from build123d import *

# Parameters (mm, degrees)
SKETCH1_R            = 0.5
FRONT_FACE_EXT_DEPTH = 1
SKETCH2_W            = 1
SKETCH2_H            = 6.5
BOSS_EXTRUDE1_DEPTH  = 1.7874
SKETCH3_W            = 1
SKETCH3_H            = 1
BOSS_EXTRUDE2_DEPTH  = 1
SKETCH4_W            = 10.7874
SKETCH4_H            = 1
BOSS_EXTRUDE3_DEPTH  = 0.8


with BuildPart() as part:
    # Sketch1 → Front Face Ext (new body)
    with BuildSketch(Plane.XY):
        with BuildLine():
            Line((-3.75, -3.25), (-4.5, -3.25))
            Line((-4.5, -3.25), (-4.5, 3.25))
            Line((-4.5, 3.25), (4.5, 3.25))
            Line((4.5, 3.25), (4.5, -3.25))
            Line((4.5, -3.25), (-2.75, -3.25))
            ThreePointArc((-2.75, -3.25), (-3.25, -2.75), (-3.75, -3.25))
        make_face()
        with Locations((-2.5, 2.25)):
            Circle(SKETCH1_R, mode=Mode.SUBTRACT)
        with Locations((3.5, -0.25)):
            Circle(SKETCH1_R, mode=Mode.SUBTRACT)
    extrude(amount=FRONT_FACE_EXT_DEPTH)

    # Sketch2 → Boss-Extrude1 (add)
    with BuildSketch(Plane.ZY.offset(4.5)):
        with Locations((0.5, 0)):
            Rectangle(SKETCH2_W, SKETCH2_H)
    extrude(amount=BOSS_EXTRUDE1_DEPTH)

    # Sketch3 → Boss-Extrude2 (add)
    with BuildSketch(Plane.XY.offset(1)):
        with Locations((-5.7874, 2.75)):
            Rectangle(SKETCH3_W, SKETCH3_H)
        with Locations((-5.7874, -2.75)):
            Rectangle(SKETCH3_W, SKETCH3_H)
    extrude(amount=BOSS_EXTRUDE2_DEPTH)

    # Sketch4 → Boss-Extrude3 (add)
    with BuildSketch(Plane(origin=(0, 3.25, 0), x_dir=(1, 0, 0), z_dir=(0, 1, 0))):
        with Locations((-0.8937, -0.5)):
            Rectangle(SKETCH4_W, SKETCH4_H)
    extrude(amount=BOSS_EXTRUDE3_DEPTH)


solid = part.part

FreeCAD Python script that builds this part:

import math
import FreeCAD as App
import Part
import Sketcher

V = App.Vector
Q = App.Units.Quantity


def add_polygon(sketch, points):
    """Adds a closed chain of lines whose ends are joined by coincident constraints."""
    first, n = sketch.GeometryCount, len(points)
    for a, b in zip(points, points[1:] + points[:1]):
        sketch.addGeometry(Part.LineSegment(App.Vector(*a, 0), App.Vector(*b, 0)), False)
    for i in range(n):
        sketch.addConstraint(Sketcher.Constraint("Coincident", first + i, 2, first + (i + 1) % n, 1))

doc = App.newDocument("Part")
params = doc.addObject("Spreadsheet::Sheet", "Params")
for row, (alias, value) in enumerate([
    ("sketch1_diameter", "1 mm"),
    ("sketch1_width", "9 mm"),
    ("sketch1_height", "6.5 mm"),
    ("sketch1_width2", "0.75 mm"),
    ("pad1_length", "1 mm"),
    ("sketch2_height", "1 mm"),
    ("sketch2_width", "6.5 mm"),
    ("pad2_length", "1.7874 mm"),
    ("sketch3_width", "1 mm"),
    ("pad3_length", "1 mm"),
    ("sketch4_height", "1 mm"),
    ("pad4_length", "0.8 mm"),
], start=1):
    params.set(f"A{row}", alias)
    params.set(f"B{row}", "=" + value)
    params.setAlias(f"B{row}", alias)

body = doc.addObject("PartDesign::Body", "Body")

# Sketch on XY plane
sketch1 = body.newObject("Sketcher::SketchObject", "Sketch")
sketch1.AttachmentSupport = (doc.getObject("XY_Plane"), [""])
sketch1.MapMode = "FlatFace"
sketch1.addGeometry(Part.LineSegment(V(-4.5, -3.2, 0), V(-3.8, -3.2, 0)), False)
sketch1.addGeometry(Part.ArcOfCircle(Part.Circle(V(-3.2, -3.2, 0), V(0, 0, 1), 0.5), math.radians(0), math.radians(180)), False)
sketch1.addGeometry(Part.LineSegment(V(-2.8, -3.2, 0), V(4.5, -3.2, 0)), False)
sketch1.addGeometry(Part.LineSegment(V(4.5, -3.2, 0), V(4.5, 3.2, 0)), False)
sketch1.addGeometry(Part.LineSegment(V(4.5, 3.2, 0), V(-4.5, 3.2, 0)), False)
sketch1.addGeometry(Part.LineSegment(V(-4.5, 3.2, 0), V(-4.5, -3.2, 0)), False)
sketch1.addGeometry(Part.Circle(V(3.5, -0.2, 0), V(0, 0, 1), 0.5), False)
sketch1.addGeometry(Part.Circle(V(-2.5, 2.2, 0), V(0, 0, 1), 0.5), False)
sketch1.addConstraint(Sketcher.Constraint("Coincident", 0, 2, 1, 2))
sketch1.addConstraint(Sketcher.Constraint("Coincident", 1, 1, 2, 1))
sketch1.addConstraint(Sketcher.Constraint("Coincident", 2, 2, 3, 1))
sketch1.addConstraint(Sketcher.Constraint("Coincident", 3, 2, 4, 1))
sketch1.addConstraint(Sketcher.Constraint("Coincident", 4, 2, 5, 1))
sketch1.addConstraint(Sketcher.Constraint("Coincident", 5, 2, 0, 1))
sketch1.addConstraint(Sketcher.Constraint("Horizontal", 0))
sketch1.addConstraint(Sketcher.Constraint("Horizontal", 2))
sketch1.addConstraint(Sketcher.Constraint("Vertical", 3))
sketch1.addConstraint(Sketcher.Constraint("Horizontal", 4))
sketch1.addConstraint(Sketcher.Constraint("Vertical", 5))
sketch1.addConstraint(Sketcher.Constraint("Equal", 1, 6))
sketch1.addConstraint(Sketcher.Constraint("Equal", 6, 7))
sketch1.addConstraint(Sketcher.Constraint("Symmetric", 2, 2, 4, 2, -1, 1))
sketch1.addConstraint(Sketcher.Constraint("Horizontal", 1, 3, 0, 2))
sketch1.addConstraint(Sketcher.Constraint("Horizontal", 0, 2, 1, 1))
sketch1.addConstraint(Sketcher.Constraint("Diameter", 6, Q("1 mm")))
sketch1.addConstraint(Sketcher.Constraint("DistanceX", 4, 2, 4, 1, Q("9 mm")))
sketch1.addConstraint(Sketcher.Constraint("DistanceY", 3, 1, 3, 2, Q("6.5 mm")))
sketch1.addConstraint(Sketcher.Constraint("DistanceY", 1, 3, 6, 3, Q("3 mm")))
sketch1.addConstraint(Sketcher.Constraint("DistanceX", 7, 3, 6, 3, Q("6 mm")))
sketch1.addConstraint(Sketcher.Constraint("DistanceX", 6, 3, 2, 2, Q("1 mm")))
sketch1.addConstraint(Sketcher.Constraint("DistanceY", 7, 3, 3, 2, Q("1 mm")))
sketch1.addConstraint(Sketcher.Constraint("DistanceX", 0, 1, 0, 2, Q("0.75 mm")))
sketch1.setExpression("Constraints[16]", "Params.sketch1_diameter")
sketch1.setExpression("Constraints[17]", "Params.sketch1_width")
sketch1.setExpression("Constraints[18]", "Params.sketch1_height")
sketch1.setExpression("Constraints[23]", "Params.sketch1_width2")
pad1 = body.newObject("PartDesign::Pad", "Pad")
pad1.Profile = sketch1
pad1.setExpression("Length", "Params.pad1_length")

# Sketch on YZ plane
sketch2 = body.newObject("Sketcher::SketchObject", "Sketch001")
sketch2.AttachmentSupport = (doc.getObject("YZ_Plane"), [""])
sketch2.MapMode = "FlatFace"
sketch2.AttachmentOffset = App.Placement(V(0, 0, -4.5), App.Rotation())
add_polygon(sketch2, [(3.2, 0), (-3.2, 0), (-3.2, 1), (3.2, 1)])  # lines 0-3
sketch2.addConstraint(Sketcher.Constraint("Horizontal", 0))
sketch2.addConstraint(Sketcher.Constraint("Vertical", 1))
sketch2.addConstraint(Sketcher.Constraint("Horizontal", 2))
sketch2.addConstraint(Sketcher.Constraint("Vertical", 3))
sketch2.addConstraint(Sketcher.Constraint("Symmetric", 0, 2, 3, 2, -1, 1))
sketch2.addConstraint(Sketcher.Constraint("DistanceY", 1, 1, 1, 2, Q("1 mm")))
sketch2.addConstraint(Sketcher.Constraint("DistanceX", 0, 2, 0, 1, Q("6.5 mm")))
sketch2.setExpression("Constraints[9]", "Params.sketch2_height")
sketch2.setExpression("Constraints[10]", "Params.sketch2_width")
pad2 = body.newObject("PartDesign::Pad", "Pad001")
pad2.Profile = sketch2
pad2.setExpression("Length", "Params.pad2_length")
pad2.Reversed = True

# Sketch on XY plane
sketch3 = body.newObject("Sketcher::SketchObject", "Sketch002")
sketch3.AttachmentSupport = (doc.getObject("XY_Plane"), [""])
sketch3.MapMode = "FlatFace"
sketch3.AttachmentOffset = App.Placement(V(0, 0, 1), App.Rotation())
add_polygon(sketch3, [(-6.3, 3.2), (-6.3, 2.2), (-5.3, 2.2), (-5.3, 3.2)])  # lines 0-3
add_polygon(sketch3, [(-6.3, -2.2), (-6.3, -3.2), (-5.3, -3.2), (-5.3, -2.2)])  # lines 4-7
sketch3.addConstraint(Sketcher.Constraint("Vertical", 0))
sketch3.addConstraint(Sketcher.Constraint("Horizontal", 1))
sketch3.addConstraint(Sketcher.Constraint("Vertical", 2))
sketch3.addConstraint(Sketcher.Constraint("Horizontal", 3))
sketch3.addConstraint(Sketcher.Constraint("Vertical", 4))
sketch3.addConstraint(Sketcher.Constraint("Horizontal", 5))
sketch3.addConstraint(Sketcher.Constraint("Vertical", 6))
sketch3.addConstraint(Sketcher.Constraint("Horizontal", 7))
sketch3.addConstraint(Sketcher.Constraint("Symmetric", 3, 2, 4, 2, -1))
sketch3.addConstraint(Sketcher.Constraint("Symmetric", 1, 2, 6, 2, -1))
sketch3.addConstraint(Sketcher.Constraint("Equal", 7, 0))
sketch3.addConstraint(Sketcher.Constraint("DistanceX", 1, 1, 1, 2, Q("1 mm")))
sketch3.addConstraint(Sketcher.Constraint("DistanceY", 4, 2, 0, 2, Q("5.5 mm")))
sketch3.addConstraint(Sketcher.Constraint("DistanceX", 0, 2, -1, 1, Q("6.2874 mm")))
sketch3.setExpression("Constraints[19]", "Params.sketch3_width")
pad3 = body.newObject("PartDesign::Pad", "Pad002")
pad3.Profile = sketch3
pad3.setExpression("Length", "Params.pad3_length")

# Sketch on XZ plane
sketch4 = body.newObject("Sketcher::SketchObject", "Sketch003")
sketch4.AttachmentSupport = (doc.getObject("XZ_Plane"), [""])
sketch4.MapMode = "FlatFace"
sketch4.AttachmentOffset = App.Placement(V(0, 0, -3.25), App.Rotation())
add_polygon(sketch4, [(-6.3, 0), (-6.3, 1), (4.5, 1), (4.5, 0)])  # lines 0-3
sketch4.addConstraint(Sketcher.Constraint("Vertical", 0))
sketch4.addConstraint(Sketcher.Constraint("Horizontal", 1))
sketch4.addConstraint(Sketcher.Constraint("Vertical", 2))
sketch4.addConstraint(Sketcher.Constraint("Horizontal", 3))
sketch4.addConstraint(Sketcher.Constraint("PointOnObject", 2, 2, -1))
sketch4.addConstraint(Sketcher.Constraint("DistanceY", 0, 1, 0, 2, Q("1 mm")))
sketch4.addConstraint(Sketcher.Constraint("DistanceX", -1, 1, 1, 2, Q("4.5 mm")))
sketch4.addConstraint(Sketcher.Constraint("DistanceX", 1, 1, 1, 2, Q("10.7874 mm")))
sketch4.setExpression("Constraints[9]", "Params.sketch4_height")
pad4 = body.newObject("PartDesign::Pad", "Pad003")
pad4.Profile = sketch4
pad4.setExpression("Length", "Params.pad4_length")
pad4.Reversed = True

doc.recompute()
